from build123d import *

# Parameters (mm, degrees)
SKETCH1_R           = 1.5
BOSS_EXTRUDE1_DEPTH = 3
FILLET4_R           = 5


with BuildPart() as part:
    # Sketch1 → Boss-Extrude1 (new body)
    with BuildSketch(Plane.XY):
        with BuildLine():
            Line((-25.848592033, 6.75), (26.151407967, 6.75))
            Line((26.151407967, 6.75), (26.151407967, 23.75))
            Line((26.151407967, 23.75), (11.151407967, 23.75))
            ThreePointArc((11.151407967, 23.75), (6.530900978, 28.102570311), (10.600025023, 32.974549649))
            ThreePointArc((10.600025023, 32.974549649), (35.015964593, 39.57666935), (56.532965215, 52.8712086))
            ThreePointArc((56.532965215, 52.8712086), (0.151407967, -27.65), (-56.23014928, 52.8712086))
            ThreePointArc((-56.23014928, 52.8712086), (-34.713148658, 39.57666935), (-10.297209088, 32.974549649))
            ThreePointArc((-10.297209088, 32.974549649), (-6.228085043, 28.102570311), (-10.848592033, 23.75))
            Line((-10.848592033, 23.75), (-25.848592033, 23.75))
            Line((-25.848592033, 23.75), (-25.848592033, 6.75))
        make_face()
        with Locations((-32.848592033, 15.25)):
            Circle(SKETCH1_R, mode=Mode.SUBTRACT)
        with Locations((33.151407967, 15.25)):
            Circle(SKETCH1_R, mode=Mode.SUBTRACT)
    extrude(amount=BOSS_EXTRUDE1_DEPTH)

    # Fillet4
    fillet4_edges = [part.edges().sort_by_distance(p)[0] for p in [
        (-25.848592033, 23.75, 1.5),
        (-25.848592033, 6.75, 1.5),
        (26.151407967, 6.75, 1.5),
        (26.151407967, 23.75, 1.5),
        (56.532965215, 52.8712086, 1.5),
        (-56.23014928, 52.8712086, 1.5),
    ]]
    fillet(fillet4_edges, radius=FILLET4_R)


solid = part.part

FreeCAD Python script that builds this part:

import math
import FreeCAD as App
import Part
import Sketcher
Q = App.Units.Quantity


def edges_at(feature, points):
    """Names of the edges that pass closest to the given points."""
    edges = feature.Shape.Edges
    near = lambda p: min(range(len(edges)), key=lambda i: edges[i].distToShape(Part.Vertex(*p))[0])
    return sorted({f"Edge{near(p) + 1}" for p in points})

doc = App.newDocument("Part")
body = doc.addObject("PartDesign::Body", "Body")

sketch1 = body.newObject("Sketcher::SketchObject", "Sketch")
sketch1.AttachmentSupport = (doc.getObject("XY_Plane"), [""])
sketch1.MapMode = "FlatFace"
sketch1.addGeometry([
    Part.LineSegment(App.Vector(26.2, 6.8, 0), App.Vector(-25.8, 6.8, 0)),
    Part.LineSegment(App.Vector(-25.8, 6.8, 0), App.Vector(-25.8, 23.8, 0)),
    Part.LineSegment(App.Vector(-25.8, 23.8, 0), App.Vector(-10.8, 23.8, 0)),
    Part.ArcOfCircle(Part.Circle(App.Vector(-10.8, 28.4, 0), App.Vector(0, 0, 1), 4.6), math.radians(-90), math.radians(83)),
    Part.ArcOfCircle(Part.Circle(App.Vector(0.2, 120.1, 0), App.Vector(0, 0, 1), 87.7), math.radians(-130), math.radians(-97)),
    Part.ArcOfCircle(Part.Circle(App.Vector(0.2, 32.4, 0), App.Vector(0, 0, 1), 60), math.radians(160), math.radians(380)),
    Part.ArcOfCircle(Part.Circle(App.Vector(0.2, 120.1, 0), App.Vector(0, 0, 1), 87.7), math.radians(-83), math.radians(-50)),
    Part.ArcOfCircle(Part.Circle(App.Vector(11.2, 28.4, 0), App.Vector(0, 0, 1), 4.6), math.radians(97), math.radians(270)),
    Part.LineSegment(App.Vector(11.2, 23.8, 0), App.Vector(26.2, 23.8, 0)),
    Part.LineSegment(App.Vector(26.2, 23.8, 0), App.Vector(26.2, 6.8, 0)),
    Part.Circle(App.Vector(33.2, 15.2, 0), App.Vector(0, 0, 1), 1.5),
    Part.Circle(App.Vector(-32.8, 15.2, 0), App.Vector(0, 0, 1), 1.5),
], False)
sketch1.addConstraint([
    Sketcher.Constraint("Coincident", 0, 2, 1, 1),
    Sketcher.Constraint("Coincident", 1, 2, 2, 1),
    Sketcher.Constraint("Tangent", 2, 2, 3, 1),
    Sketcher.Constraint("Tangent", 3, 2, 4, 2),
    Sketcher.Constraint("Coincident", 4, 1, 5, 1),
    Sketcher.Constraint("Coincident", 5, 2, 6, 2),
    Sketcher.Constraint("Tangent", 6, 1, 7, 1),
    Sketcher.Constraint("Tangent", 7, 2, 8, 1),
    Sketcher.Constraint("Coincident", 8, 2, 9, 1),
    Sketcher.Constraint("Coincident", 9, 2, 0, 1),
    Sketcher.Constraint("Horizontal", 0),
    Sketcher.Constraint("Vertical", 1),
    Sketcher.Constraint("Horizontal", 2),
    Sketcher.Constraint("Horizontal", 8),
    Sketcher.Constraint("Vertical", 9),
    Sketcher.Constraint("Coincident", 6, 3, 4, 3),
    Sketcher.Constraint("Equal", 4, 6),
    Sketcher.Constraint("Equal", 3, 7),
    Sketcher.Constraint("Equal", 10, 11),
    Sketcher.Constraint("Horizontal", 3, 3, 7, 3),
    Sketcher.Constraint("Horizontal", 10, 3, 11, 3),
    Sketcher.Constraint("Horizontal", 4, 1, 5, 2),
    Sketcher.Constraint("Equal", 2, 8),
    Sketcher.Constraint("Diameter", 10, Q("3 mm")),
    Sketcher.Constraint("Radius", 5, Q("60 mm")),
    Sketcher.Constraint("DistanceX", 0, 2, 0, 1, Q("52 mm")),
    Sketcher.Constraint("DistanceX", 2, 1, 2, 2, Q("15 mm")),
    Sketcher.Constraint("DistanceY", 1, 1, 1, 2, Q("17 mm")),
    Sketcher.Constraint("DistanceX", 7, 3, 10, 3, Q("22 mm")),
    Sketcher.Constraint("DistanceX", 11, 3, 3, 3, Q("22 mm")),
    Sketcher.Constraint("DistanceY", 10, 3, 5, 3, Q("17.1 mm")),
    Sketcher.Constraint("DistanceY", 0, 2, 11, 3, Q("8.5 mm")),
    Sketcher.Constraint("DistanceY", -1, 1, 5, 3, Q("32.35 mm")),
    Sketcher.Constraint("Radius", 3, Q("4.628754 mm")),
    Sketcher.Constraint("Radius", 4, Q("87.714132 mm")),
    Sketcher.Constraint("DistanceX", 3, 2, -1, 1, Q("10.297209 mm")),
])
pad1 = body.newObject("PartDesign::Pad", "Pad")
pad1.Profile = sketch1
pad1.Length = 3
doc.recompute()

fillet = body.newObject("PartDesign::Fillet", "Fillet")
fillet.Base = (pad1, edges_at(pad1, [
    (-25.849, 23.75, 1.5),
    (-25.849, 6.75, 1.5),
    (26.151, 6.75, 1.5),
    (26.151, 23.75, 1.5),
    (56.533, 52.871, 1.5),
    (-56.23, 52.871, 1.5),
]))
fillet.Radius = 5

doc.recompute()
